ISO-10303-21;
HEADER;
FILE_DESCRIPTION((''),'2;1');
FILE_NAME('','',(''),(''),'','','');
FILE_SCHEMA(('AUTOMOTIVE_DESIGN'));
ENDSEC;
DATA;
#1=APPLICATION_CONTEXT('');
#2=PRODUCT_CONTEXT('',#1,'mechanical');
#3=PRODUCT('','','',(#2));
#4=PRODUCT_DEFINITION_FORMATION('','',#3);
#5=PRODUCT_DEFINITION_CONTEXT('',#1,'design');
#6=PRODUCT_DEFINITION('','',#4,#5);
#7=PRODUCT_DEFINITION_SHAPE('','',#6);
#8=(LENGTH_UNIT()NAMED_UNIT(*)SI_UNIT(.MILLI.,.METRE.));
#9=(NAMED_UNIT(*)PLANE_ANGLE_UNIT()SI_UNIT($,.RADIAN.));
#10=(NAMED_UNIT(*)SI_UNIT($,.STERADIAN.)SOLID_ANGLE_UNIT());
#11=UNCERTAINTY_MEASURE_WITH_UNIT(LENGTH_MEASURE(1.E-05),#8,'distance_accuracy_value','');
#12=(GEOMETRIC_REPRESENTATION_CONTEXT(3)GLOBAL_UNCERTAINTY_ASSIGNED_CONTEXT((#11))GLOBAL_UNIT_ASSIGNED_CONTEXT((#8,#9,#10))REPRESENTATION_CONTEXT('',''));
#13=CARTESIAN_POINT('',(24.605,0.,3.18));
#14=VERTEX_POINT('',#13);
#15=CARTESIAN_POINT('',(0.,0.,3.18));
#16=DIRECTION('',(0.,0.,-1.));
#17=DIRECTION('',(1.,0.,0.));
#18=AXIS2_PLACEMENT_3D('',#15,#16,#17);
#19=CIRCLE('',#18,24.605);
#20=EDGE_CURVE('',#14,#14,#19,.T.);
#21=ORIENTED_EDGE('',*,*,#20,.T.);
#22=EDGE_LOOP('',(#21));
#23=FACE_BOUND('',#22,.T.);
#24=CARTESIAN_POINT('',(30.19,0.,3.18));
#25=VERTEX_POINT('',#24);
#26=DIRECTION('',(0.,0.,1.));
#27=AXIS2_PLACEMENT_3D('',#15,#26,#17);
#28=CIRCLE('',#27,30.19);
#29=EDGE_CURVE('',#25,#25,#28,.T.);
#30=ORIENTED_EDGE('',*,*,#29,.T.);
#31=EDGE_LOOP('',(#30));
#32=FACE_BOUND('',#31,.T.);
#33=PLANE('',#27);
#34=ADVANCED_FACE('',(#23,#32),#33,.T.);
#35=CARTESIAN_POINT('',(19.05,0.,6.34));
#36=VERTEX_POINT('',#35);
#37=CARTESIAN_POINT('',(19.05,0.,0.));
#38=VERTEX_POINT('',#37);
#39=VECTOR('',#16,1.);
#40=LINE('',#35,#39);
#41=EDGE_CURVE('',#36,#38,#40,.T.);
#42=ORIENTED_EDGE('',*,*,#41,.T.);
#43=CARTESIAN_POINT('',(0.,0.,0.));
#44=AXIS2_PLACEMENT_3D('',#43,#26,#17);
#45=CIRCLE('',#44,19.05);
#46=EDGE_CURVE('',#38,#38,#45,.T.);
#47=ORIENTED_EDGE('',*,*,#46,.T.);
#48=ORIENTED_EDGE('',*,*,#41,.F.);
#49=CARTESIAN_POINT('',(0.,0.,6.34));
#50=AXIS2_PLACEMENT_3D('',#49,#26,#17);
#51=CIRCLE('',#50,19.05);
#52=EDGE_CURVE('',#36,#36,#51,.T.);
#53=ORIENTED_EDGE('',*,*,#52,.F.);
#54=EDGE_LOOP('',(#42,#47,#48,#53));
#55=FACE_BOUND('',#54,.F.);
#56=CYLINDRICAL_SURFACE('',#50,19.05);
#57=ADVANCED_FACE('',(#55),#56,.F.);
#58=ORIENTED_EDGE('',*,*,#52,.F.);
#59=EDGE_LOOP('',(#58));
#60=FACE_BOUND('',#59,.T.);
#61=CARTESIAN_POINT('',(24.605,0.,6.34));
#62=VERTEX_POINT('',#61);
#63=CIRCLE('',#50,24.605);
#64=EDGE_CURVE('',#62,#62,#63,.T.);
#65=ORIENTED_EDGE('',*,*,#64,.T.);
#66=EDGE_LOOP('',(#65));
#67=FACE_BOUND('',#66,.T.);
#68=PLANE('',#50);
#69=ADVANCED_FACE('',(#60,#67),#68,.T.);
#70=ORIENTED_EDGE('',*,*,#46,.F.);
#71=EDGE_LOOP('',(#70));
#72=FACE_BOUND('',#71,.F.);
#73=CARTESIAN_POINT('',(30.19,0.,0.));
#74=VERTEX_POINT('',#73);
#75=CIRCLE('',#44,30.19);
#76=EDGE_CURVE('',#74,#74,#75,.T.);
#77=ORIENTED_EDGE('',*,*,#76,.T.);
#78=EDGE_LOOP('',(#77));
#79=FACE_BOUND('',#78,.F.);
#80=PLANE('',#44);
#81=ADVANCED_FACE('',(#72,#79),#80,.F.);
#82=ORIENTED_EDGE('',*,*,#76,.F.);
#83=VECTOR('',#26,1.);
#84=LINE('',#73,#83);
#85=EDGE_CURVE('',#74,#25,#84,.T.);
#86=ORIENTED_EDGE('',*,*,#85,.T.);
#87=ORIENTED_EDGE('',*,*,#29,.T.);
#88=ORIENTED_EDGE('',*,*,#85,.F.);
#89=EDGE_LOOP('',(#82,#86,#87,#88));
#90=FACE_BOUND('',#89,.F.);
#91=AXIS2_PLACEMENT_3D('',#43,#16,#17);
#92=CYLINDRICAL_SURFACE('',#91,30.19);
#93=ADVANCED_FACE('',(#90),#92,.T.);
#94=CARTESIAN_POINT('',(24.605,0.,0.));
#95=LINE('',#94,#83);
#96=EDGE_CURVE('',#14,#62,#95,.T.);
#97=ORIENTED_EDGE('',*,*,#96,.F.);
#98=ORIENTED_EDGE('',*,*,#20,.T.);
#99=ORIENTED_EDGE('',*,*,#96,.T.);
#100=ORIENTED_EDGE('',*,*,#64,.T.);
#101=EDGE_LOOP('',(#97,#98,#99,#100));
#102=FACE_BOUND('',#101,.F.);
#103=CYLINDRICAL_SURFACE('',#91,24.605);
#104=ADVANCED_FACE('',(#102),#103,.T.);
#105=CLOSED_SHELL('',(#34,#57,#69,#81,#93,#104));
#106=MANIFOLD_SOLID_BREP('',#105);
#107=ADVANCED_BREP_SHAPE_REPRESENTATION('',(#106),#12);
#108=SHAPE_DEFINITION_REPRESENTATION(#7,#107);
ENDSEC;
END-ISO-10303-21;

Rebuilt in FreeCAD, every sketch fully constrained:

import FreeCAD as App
import Part
import Sketcher
from FreeCAD import Vector
Q = App.Units.Quantity

doc = App.newDocument("Part")
body = doc.addObject("PartDesign::Body", "Body")

sketch1 = doc.addObject("Sketcher::SketchObject", "Sketch")
body.addObject(sketch1)
sketch1.AttachmentSupport = (doc.XY_Plane, [""])
sketch1.MapMode = "FlatFace"
sketch1.addGeometry(Part.Circle(Vector(0, 0, 0), Vector(0, 0, 1), 30), False)
sketch1.addConstraint(Sketcher.Constraint("Coincident", 0, 3, -1, 1))
sketch1.addConstraint(Sketcher.Constraint("Diameter", 0, Q("60.38 mm")))
pad1 = doc.addObject("PartDesign::Pad", "Pad")
body.addObject(pad1)
pad1.Profile = sketch1
pad1.Length = 3.18

sketch2 = doc.addObject("Sketcher::SketchObject", "Sketch001")
body.addObject(sketch2)
sketch2.AttachmentSupport = (doc.XY_Plane, [""])
sketch2.MapMode = "FlatFace"
sketch2.addGeometry(Part.Circle(Vector(0, 0, 0), Vector(0, 0, 1), 25), False)
sketch2.addConstraint(Sketcher.Constraint("Coincident", 0, 3, -1, 1))
sketch2.addConstraint(Sketcher.Constraint("Diameter", 0, Q("49.21 mm")))
pad2 = doc.addObject("PartDesign::Pad", "Pad001")
body.addObject(pad2)
pad2.Profile = sketch2
pad2.Length = 6.34

sketch3 = doc.addObject("Sketcher::SketchObject", "Sketch002")
body.addObject(sketch3)
sketch3.AttachmentSupport = (doc.XY_Plane, [""])
sketch3.MapMode = "FlatFace"
sketch3.AttachmentOffset = App.Placement(Vector(0, 0, 6.34), App.Rotation())
sketch3.addGeometry(Part.Circle(Vector(0, 0, 0), Vector(0, 0, 1), 19), False)
sketch3.addConstraint(Sketcher.Constraint("Coincident", 0, 3, -1, 1))
sketch3.addConstraint(Sketcher.Constraint("Diameter", 0, Q("1.5 in")))
pocket1 = doc.addObject("PartDesign::Pocket", "Pocket")
body.addObject(pocket1)
pocket1.Profile = sketch3
pocket1.Type = "ThroughAll"

doc.recompute()
